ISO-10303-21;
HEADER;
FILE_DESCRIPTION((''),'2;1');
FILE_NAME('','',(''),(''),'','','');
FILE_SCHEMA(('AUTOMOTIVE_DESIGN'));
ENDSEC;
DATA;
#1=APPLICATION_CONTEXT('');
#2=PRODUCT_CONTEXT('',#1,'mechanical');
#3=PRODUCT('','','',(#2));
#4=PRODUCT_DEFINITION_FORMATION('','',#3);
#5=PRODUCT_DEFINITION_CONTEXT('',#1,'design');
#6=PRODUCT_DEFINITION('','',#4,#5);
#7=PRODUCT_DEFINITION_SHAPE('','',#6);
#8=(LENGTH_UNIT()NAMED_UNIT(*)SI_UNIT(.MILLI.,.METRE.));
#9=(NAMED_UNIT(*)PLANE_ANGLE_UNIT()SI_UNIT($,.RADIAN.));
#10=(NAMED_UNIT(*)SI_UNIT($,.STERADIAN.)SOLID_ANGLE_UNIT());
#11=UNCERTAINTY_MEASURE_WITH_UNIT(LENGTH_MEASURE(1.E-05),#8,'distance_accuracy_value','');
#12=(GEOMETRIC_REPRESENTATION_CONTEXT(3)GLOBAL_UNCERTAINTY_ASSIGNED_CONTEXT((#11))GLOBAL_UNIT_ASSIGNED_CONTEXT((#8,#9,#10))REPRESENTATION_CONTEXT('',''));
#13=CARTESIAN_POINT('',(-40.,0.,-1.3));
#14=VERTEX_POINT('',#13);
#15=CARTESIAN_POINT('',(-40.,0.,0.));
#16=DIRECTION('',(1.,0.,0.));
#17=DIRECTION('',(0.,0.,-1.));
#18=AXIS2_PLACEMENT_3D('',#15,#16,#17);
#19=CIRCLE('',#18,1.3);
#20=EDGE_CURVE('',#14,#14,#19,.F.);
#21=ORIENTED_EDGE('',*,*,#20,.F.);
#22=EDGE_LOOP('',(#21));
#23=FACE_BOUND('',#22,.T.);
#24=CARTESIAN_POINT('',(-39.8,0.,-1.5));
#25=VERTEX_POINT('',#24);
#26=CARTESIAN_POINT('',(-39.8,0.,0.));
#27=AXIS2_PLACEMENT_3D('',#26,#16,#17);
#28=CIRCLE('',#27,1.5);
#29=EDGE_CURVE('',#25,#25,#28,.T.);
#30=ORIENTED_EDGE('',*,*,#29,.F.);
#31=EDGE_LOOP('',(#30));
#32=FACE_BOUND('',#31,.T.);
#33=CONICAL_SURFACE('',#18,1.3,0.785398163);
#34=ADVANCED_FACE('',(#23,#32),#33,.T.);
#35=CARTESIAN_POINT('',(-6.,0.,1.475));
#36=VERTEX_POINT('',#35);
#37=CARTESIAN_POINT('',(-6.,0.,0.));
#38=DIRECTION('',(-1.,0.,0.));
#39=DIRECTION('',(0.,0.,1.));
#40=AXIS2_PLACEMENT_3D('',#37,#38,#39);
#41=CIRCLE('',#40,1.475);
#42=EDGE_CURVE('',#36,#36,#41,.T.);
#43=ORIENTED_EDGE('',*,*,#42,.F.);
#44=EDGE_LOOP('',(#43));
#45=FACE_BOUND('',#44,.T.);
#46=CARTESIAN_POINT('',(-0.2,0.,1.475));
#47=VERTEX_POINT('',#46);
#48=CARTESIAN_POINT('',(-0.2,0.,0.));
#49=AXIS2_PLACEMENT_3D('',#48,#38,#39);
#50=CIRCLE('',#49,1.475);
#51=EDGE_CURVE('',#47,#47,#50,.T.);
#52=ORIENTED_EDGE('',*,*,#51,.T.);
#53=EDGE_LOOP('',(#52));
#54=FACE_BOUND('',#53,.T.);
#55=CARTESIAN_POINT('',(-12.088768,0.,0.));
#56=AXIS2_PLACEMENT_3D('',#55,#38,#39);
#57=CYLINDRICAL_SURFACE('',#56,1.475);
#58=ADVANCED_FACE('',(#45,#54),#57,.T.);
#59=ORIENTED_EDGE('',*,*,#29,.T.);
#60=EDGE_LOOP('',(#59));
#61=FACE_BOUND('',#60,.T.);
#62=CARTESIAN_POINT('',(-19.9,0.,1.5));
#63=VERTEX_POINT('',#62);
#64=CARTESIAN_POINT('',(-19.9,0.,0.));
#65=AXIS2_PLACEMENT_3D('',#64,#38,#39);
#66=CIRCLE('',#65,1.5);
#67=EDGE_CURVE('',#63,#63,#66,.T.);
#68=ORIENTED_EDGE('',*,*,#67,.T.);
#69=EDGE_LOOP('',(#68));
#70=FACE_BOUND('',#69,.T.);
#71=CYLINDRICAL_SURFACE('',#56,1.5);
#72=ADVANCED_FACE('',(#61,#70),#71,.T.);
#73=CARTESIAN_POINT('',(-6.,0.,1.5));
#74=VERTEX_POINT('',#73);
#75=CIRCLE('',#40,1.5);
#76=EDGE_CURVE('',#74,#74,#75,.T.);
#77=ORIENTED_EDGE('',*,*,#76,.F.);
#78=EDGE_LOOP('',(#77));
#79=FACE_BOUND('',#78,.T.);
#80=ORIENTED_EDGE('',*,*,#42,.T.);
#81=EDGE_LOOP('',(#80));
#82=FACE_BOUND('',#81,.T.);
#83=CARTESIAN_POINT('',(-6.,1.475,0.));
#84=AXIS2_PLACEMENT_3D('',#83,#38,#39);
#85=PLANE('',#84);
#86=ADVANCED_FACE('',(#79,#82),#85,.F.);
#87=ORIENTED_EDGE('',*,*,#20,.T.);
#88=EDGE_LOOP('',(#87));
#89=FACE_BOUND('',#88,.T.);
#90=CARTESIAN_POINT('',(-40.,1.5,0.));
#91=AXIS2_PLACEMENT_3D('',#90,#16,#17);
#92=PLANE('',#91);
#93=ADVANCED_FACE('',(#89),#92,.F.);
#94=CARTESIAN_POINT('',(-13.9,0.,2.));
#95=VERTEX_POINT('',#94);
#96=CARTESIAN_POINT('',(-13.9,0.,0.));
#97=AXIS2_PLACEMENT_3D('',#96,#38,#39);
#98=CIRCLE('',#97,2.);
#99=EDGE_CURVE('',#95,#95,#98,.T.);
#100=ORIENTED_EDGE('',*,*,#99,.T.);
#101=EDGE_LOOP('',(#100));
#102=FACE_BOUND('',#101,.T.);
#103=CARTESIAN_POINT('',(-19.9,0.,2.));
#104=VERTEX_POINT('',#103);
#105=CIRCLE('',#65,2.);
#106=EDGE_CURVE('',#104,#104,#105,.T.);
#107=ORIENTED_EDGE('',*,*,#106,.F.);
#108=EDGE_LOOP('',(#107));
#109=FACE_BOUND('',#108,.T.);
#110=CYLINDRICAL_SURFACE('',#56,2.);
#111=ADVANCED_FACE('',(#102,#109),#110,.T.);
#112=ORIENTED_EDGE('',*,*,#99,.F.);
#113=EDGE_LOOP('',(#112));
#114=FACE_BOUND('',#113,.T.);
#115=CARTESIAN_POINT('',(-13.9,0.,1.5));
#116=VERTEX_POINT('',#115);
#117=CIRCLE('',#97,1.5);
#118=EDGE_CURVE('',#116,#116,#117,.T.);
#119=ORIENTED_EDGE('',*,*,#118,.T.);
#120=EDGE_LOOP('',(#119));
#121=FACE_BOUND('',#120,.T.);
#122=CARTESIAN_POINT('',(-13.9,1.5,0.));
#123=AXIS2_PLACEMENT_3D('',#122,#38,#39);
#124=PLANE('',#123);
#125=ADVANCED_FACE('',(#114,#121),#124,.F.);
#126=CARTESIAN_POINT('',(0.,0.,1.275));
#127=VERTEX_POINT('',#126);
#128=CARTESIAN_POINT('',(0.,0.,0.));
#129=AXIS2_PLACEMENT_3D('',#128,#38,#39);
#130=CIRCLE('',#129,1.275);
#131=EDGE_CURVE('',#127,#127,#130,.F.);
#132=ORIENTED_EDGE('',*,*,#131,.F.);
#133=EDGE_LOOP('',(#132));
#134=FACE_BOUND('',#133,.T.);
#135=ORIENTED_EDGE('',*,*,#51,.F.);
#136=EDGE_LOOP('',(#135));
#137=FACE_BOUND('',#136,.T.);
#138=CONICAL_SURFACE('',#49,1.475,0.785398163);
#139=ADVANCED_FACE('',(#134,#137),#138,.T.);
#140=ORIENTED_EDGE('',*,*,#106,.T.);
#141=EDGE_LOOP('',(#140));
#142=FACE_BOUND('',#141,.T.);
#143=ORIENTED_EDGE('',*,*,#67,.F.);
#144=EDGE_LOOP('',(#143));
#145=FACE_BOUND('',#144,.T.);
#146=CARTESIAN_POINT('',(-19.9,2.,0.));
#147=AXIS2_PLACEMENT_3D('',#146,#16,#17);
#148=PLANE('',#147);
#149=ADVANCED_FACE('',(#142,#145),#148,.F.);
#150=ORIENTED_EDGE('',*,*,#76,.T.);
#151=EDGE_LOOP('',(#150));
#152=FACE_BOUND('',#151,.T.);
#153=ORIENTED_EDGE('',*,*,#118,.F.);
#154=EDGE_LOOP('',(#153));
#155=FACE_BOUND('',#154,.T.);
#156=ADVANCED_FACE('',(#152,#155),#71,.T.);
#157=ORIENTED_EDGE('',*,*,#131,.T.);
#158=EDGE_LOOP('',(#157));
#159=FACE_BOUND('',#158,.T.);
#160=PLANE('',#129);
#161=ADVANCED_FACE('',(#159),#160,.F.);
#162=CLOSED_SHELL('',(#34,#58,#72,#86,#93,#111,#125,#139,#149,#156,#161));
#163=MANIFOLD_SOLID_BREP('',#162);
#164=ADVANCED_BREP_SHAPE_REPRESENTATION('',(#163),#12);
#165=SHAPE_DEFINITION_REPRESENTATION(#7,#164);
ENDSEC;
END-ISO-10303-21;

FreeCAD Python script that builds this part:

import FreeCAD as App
import Part
import Sketcher


def edges_at(feature, points):
    """Names of the edges that pass closest to the given points."""
    edges = feature.Shape.Edges
    near = lambda p: min(range(len(edges)), key=lambda i: edges[i].distToShape(Part.Vertex(*p))[0])
    return sorted({f"Edge{near(p) + 1}" for p in points})


def add_polygon(sketch, points):
    """Adds a closed chain of lines whose ends are joined by coincident constraints."""
    first, n = sketch.GeometryCount, len(points)
    for a, b in zip(points, points[1:] + points[:1]):
        sketch.addGeometry(Part.LineSegment(App.Vector(*a, 0), App.Vector(*b, 0)), False)
    for i in range(n):
        sketch.addConstraint(Sketcher.Constraint("Coincident", first + i, 2, first + (i + 1) % n, 1))

doc = App.newDocument("Part")
body = doc.addObject("PartDesign::Body", "Body")

sketch1 = body.newObject("Sketcher::SketchObject", "Sketch")
sketch1.AttachmentSupport = (doc.getObject("XY_Plane"), [""])
sketch1.MapMode = "FlatFace"
add_polygon(sketch1, [(0, 0), (0, 1.475), (-6, 1.475), (-6, 1.5), (-13.9, 1.5), (-13.9, 2), (-19.9, 2), (-19.9, 1.5), (-40, 1.5), (-40, 0)])
sketch1.addConstraint(Sketcher.Constraint("Vertical", 0))
sketch1.addConstraint(Sketcher.Constraint("Horizontal", 1))
sketch1.addConstraint(Sketcher.Constraint("Vertical", 2))
sketch1.addConstraint(Sketcher.Constraint("Horizontal", 3))
sketch1.addConstraint(Sketcher.Constraint("Vertical", 4))
sketch1.addConstraint(Sketcher.Constraint("Horizontal", 5))
sketch1.addConstraint(Sketcher.Constraint("Vertical", 6))
sketch1.addConstraint(Sketcher.Constraint("Horizontal", 7))
sketch1.addConstraint(Sketcher.Constraint("Vertical", 8))
sketch1.addConstraint(Sketcher.Constraint("Horizontal", 9))
sketch1.addConstraint(Sketcher.Constraint("Coincident", 9, 2, -1, 1))
sketch1.addConstraint(Sketcher.Constraint("Horizontal", 3, 2, 6, 2))
sketch1.addConstraint(Sketcher.Constraint("Equal", 1, 5))
sketch1.addConstraint(Sketcher.Constraint("DistanceX", 1, 2, 1, 1, 6.0))
sketch1.addConstraint(Sketcher.Constraint("DistanceX", 9, 1, 9, 2, 40.0))
sketch1.addConstraint(Sketcher.Constraint("DistanceX", 3, 2, 3, 1, 7.9))
sketch1.addConstraint(Sketcher.Constraint("DistanceY", 4, 1, 4, 2, 0.5))
sketch1.addConstraint(Sketcher.Constraint("DistanceY", 8, 2, 8, 1, 1.5))
sketch1.addConstraint(Sketcher.Constraint("DistanceY", 0, 1, 0, 2, 1.475))
revolution = body.newObject("PartDesign::Revolution", "Revolution")
revolution.Profile = sketch1
revolution.ReferenceAxis = (sketch1, ["H_Axis"])
revolution.Angle = 360
doc.recompute()

chamfer = body.newObject("PartDesign::Chamfer", "Chamfer")
chamfer.Base = (revolution, edges_at(revolution, [(0, 0, -1.475), (-40, 0, -1.5)]))
chamfer.Size = 0.2

doc.recompute()
